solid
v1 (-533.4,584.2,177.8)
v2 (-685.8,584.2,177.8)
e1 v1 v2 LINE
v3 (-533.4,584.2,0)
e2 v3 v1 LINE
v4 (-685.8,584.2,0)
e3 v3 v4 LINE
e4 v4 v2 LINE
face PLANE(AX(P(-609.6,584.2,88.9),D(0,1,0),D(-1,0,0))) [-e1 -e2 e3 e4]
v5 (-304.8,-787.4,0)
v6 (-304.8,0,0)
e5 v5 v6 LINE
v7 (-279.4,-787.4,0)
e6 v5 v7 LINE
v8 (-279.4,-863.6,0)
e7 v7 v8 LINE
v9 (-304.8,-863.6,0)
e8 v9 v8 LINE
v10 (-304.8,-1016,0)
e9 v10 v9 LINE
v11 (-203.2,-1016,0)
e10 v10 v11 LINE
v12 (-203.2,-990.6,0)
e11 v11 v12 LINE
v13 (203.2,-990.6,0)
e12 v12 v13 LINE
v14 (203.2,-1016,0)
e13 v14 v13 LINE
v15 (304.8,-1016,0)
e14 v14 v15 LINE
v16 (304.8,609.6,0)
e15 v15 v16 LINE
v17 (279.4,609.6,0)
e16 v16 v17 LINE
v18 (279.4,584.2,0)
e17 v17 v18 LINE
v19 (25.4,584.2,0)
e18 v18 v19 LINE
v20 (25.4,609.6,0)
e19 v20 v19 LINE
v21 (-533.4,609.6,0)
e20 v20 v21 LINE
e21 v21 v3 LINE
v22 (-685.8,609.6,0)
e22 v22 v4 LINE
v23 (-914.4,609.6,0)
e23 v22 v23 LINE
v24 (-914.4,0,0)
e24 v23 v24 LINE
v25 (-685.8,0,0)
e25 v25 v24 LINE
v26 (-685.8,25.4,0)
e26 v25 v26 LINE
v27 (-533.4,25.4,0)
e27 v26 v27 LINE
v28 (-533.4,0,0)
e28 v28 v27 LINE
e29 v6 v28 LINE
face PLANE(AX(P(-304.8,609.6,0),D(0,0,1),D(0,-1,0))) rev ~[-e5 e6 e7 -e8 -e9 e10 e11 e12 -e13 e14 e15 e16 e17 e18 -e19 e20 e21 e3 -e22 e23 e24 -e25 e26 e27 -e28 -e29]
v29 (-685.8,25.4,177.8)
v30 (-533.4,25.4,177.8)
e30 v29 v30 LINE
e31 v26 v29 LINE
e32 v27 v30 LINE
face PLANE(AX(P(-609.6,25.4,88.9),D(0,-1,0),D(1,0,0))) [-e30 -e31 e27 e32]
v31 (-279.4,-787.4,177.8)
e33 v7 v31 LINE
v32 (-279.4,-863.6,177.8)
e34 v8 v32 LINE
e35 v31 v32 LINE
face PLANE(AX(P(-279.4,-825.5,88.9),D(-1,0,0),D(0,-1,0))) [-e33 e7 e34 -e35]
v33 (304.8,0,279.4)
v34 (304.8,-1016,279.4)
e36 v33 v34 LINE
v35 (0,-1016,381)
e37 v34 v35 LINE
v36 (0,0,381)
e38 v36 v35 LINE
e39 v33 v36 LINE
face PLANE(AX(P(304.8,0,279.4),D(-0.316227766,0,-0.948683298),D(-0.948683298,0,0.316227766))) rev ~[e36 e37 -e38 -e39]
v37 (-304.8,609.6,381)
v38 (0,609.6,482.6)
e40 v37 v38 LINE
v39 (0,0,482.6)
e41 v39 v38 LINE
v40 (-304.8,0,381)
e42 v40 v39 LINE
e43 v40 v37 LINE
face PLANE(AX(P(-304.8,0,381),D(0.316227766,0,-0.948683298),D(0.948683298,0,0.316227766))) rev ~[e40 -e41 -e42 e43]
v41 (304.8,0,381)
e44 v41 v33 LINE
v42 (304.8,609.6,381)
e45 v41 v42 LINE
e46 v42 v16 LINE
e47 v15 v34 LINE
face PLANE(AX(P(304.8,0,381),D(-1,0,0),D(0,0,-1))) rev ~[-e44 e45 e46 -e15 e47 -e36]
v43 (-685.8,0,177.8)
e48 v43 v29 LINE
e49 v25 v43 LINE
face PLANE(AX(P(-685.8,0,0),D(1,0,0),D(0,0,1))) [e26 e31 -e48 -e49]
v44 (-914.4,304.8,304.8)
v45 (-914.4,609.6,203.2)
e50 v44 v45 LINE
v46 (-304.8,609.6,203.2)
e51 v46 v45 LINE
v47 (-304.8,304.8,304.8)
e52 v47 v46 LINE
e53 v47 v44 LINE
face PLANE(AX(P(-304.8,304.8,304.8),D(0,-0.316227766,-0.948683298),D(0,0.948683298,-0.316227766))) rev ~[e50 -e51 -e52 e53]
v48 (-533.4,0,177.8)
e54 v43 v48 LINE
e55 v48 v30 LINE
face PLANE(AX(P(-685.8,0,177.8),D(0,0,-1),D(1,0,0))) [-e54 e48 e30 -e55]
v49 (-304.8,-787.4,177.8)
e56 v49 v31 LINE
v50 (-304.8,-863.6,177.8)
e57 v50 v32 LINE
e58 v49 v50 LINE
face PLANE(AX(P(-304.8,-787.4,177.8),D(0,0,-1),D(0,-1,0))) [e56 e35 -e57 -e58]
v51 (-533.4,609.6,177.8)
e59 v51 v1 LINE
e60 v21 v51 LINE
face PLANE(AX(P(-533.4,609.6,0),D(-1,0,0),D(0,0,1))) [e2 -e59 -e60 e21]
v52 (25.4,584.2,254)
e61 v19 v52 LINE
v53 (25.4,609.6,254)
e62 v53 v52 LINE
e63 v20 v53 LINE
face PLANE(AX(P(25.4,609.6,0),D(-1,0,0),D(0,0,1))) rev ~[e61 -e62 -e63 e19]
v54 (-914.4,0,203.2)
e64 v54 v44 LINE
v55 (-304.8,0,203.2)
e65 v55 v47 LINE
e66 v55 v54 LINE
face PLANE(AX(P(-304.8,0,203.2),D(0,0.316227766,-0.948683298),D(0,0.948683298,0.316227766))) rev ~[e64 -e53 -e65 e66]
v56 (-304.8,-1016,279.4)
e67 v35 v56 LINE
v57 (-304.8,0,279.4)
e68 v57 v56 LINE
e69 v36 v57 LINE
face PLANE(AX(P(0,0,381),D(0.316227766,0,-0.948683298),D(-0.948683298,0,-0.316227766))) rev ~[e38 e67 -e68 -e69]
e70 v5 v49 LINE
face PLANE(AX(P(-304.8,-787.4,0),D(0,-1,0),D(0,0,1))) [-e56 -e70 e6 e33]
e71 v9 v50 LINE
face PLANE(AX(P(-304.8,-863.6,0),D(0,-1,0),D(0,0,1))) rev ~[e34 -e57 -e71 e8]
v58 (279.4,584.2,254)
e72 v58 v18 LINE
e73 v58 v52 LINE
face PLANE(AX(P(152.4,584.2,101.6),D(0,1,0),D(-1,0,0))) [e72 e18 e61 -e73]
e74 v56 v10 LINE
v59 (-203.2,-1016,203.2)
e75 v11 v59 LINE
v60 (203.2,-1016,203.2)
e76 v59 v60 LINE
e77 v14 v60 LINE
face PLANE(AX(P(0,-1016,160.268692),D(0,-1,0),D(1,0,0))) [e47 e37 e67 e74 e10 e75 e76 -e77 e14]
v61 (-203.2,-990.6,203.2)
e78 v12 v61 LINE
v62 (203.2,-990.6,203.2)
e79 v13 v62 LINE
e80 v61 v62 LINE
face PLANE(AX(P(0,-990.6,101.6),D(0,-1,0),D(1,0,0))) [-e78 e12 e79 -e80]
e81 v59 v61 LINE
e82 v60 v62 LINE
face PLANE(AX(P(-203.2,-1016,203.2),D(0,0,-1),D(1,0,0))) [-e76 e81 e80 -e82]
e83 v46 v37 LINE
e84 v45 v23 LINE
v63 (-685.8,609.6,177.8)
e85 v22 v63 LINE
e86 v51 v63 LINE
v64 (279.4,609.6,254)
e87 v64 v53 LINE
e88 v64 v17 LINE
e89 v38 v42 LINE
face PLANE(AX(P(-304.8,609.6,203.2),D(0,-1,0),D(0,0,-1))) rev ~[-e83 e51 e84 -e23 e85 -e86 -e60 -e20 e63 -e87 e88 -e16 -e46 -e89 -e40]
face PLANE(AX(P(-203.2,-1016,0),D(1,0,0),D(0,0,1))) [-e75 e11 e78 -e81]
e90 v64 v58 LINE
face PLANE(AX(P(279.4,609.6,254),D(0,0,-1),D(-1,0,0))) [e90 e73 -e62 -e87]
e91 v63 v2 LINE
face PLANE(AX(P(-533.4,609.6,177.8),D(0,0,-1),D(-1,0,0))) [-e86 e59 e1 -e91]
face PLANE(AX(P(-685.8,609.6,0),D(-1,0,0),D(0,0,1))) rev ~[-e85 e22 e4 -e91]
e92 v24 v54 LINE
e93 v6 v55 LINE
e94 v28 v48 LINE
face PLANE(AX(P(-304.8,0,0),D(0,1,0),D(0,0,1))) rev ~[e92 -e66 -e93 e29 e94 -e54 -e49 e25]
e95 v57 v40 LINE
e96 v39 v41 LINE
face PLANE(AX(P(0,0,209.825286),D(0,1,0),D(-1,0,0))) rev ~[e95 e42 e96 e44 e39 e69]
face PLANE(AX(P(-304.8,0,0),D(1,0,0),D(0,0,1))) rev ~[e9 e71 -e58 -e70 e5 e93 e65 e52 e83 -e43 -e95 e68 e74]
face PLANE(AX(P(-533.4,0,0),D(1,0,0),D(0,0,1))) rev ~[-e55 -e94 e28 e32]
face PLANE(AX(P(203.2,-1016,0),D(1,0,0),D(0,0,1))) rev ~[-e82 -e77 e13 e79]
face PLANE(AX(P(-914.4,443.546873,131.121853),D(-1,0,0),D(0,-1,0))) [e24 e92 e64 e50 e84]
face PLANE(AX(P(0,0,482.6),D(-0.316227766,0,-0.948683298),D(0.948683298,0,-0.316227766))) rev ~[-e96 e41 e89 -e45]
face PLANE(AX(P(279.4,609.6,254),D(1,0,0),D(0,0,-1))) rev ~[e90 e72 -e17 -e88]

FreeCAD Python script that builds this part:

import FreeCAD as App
import Part
import Sketcher

V = App.Vector
Q = App.Units.Quantity

doc = App.newDocument("Part")
body = doc.addObject("PartDesign::Body", "Body")

sketch1 = body.newObject("Sketcher::SketchObject", "Sketch")
sketch1.AttachmentSupport = (doc.getObject("XZ_Plane"), [""])
sketch1.MapMode = "FlatFace"
sketch1.addGeometry(Part.LineSegment(V(-305, 0, 0), V(305, 0, 0)), False)
sketch1.addGeometry(Part.LineSegment(V(305, 0, 0), V(305, 279, 0)), False)
sketch1.addGeometry(Part.LineSegment(V(305, 279, 0), V(0, 381, 0)), False)
sketch1.addGeometry(Part.LineSegment(V(0, 381, 0), V(-305, 279, 0)), False)
sketch1.addGeometry(Part.LineSegment(V(-305, 279, 0), V(-305, 0, 0)), False)
sketch1.addConstraint(Sketcher.Constraint("Coincident", 0, 2, 1, 1))
sketch1.addConstraint(Sketcher.Constraint("Coincident", 1, 2, 2, 1))
sketch1.addConstraint(Sketcher.Constraint("Coincident", 2, 2, 3, 1))
sketch1.addConstraint(Sketcher.Constraint("Coincident", 3, 2, 4, 1))
sketch1.addConstraint(Sketcher.Constraint("Coincident", 4, 2, 0, 1))
sketch1.addConstraint(Sketcher.Constraint("Horizontal", 0))
sketch1.addConstraint(Sketcher.Constraint("Vertical", 1))
sketch1.addConstraint(Sketcher.Constraint("Vertical", 4))
sketch1.addConstraint(Sketcher.Constraint("Symmetric", 0, 2, 4, 2, -1, 1))
sketch1.addConstraint(Sketcher.Constraint("PointOnObject", 2, 2, -2))
sketch1.addConstraint(Sketcher.Constraint("Horizontal", 1, 2, 3, 2))
sketch1.addConstraint(Sketcher.Constraint("DistanceX", 0, 1, 0, 2, Q("24 in")))
sketch1.addConstraint(Sketcher.Constraint("DistanceY", 1, 1, 1, 2, Q("11 in")))
sketch1.addConstraint(Sketcher.Constraint("DistanceY", -1, 1, 2, 2, Q("15 in")))
pad1 = body.newObject("PartDesign::Pad", "Pad")
pad1.Profile = sketch1
pad1.Length = Q("40 in")

sketch2 = body.newObject("Sketcher::SketchObject", "Sketch001")
sketch2.AttachmentSupport = (doc.getObject("XZ_Plane"), [""])
sketch2.MapMode = "FlatFace"
sketch2.addGeometry(Part.LineSegment(V(305, 381, 0), V(305, 0, 0)), False)
sketch2.addGeometry(Part.LineSegment(V(305, 0, 0), V(-305, 0, 0)), False)
sketch2.addGeometry(Part.LineSegment(V(-305, 0, 0), V(-305, 381, 0)), False)
sketch2.addGeometry(Part.LineSegment(V(-305, 381, 0), V(0, 483, 0)), False)
sketch2.addGeometry(Part.LineSegment(V(0, 483, 0), V(305, 381, 0)), False)
sketch2.addConstraint(Sketcher.Constraint("Coincident", 0, 2, 1, 1))
sketch2.addConstraint(Sketcher.Constraint("Coincident", 1, 2, 2, 1))
sketch2.addConstraint(Sketcher.Constraint("Coincident", 2, 2, 3, 1))
sketch2.addConstraint(Sketcher.Constraint("Coincident", 3, 2, 4, 1))
sketch2.addConstraint(Sketcher.Constraint("Coincident", 4, 2, 0, 1))
sketch2.addConstraint(Sketcher.Constraint("Vertical", 0))
sketch2.addConstraint(Sketcher.Constraint("Horizontal", 1))
sketch2.addConstraint(Sketcher.Constraint("Vertical", 2))
sketch2.addConstraint(Sketcher.Constraint("Symmetric", 0, 2, 1, 2, -1, 1))
sketch2.addConstraint(Sketcher.Constraint("PointOnObject", 3, 2, -2))
sketch2.addConstraint(Sketcher.Constraint("Horizontal", 2, 2, 4, 2))
sketch2.addConstraint(Sketcher.Constraint("DistanceX", 1, 2, 1, 1, Q("24 in")))
sketch2.addConstraint(Sketcher.Constraint("DistanceY", 0, 2, 0, 1, Q("15 in")))
sketch2.addConstraint(Sketcher.Constraint("DistanceY", -1, 1, 3, 2, Q("19 in")))
pad2 = body.newObject("PartDesign::Pad", "Pad001")
pad2.Profile = sketch2
pad2.Length = Q("24 in")
pad2.Reversed = True

sketch3 = body.newObject("Sketcher::SketchObject", "Sketch002")
sketch3.AttachmentSupport = (doc.getObject("YZ_Plane"), [""])
sketch3.MapMode = "FlatFace"
sketch3.AttachmentOffset = App.Placement(V(0, 0, -12 * 25.4), App.Rotation())
sketch3.addGeometry(Part.LineSegment(V(610, 203, 0), V(610, 0, 0)), False)
sketch3.addGeometry(Part.LineSegment(V(610, 0, 0), V(0, 0, 0)), False)
sketch3.addGeometry(Part.LineSegment(V(0, 0, 0), V(0, 203, 0)), False)
sketch3.addGeometry(Part.LineSegment(V(0, 203, 0), V(305, 305, 0)), False)
sketch3.addGeometry(Part.LineSegment(V(305, 305, 0), V(610, 203, 0)), False)
sketch3.addConstraint(Sketcher.Constraint("Coincident", 0, 2, 1, 1))
sketch3.addConstraint(Sketcher.Constraint("Coincident", 1, 2, 2, 1))
sketch3.addConstraint(Sketcher.Constraint("Coincident", 2, 2, 3, 1))
sketch3.addConstraint(Sketcher.Constraint("Coincident", 3, 2, 4, 1))
sketch3.addConstraint(Sketcher.Constraint("Coincident", 4, 2, 0, 1))
sketch3.addConstraint(Sketcher.Constraint("Vertical", 0))
sketch3.addConstraint(Sketcher.Constraint("Horizontal", 1))
sketch3.addConstraint(Sketcher.Constraint("Vertical", 2))
sketch3.addConstraint(Sketcher.Constraint("Coincident", 1, 2, -1, 1))
sketch3.addConstraint(Sketcher.Constraint("Horizontal", 2, 2, 4, 2))
sketch3.addConstraint(Sketcher.Constraint("Equal", 3, 4))
sketch3.addConstraint(Sketcher.Constraint("DistanceX", 1, 2, 1, 1, Q("24 in")))
sketch3.addConstraint(Sketcher.Constraint("DistanceY", 0, 2, 0, 1, Q("8 in")))
sketch3.addConstraint(Sketcher.Constraint("DistanceY", -1, 1, 3, 2, Q("12 in")))
pad3 = body.newObject("PartDesign::Pad", "Pad002")
pad3.Profile = sketch3
pad3.Length = Q("24 in")
pad3.Reversed = True

sketch4 = body.newObject("Sketcher::SketchObject", "Sketch003")
sketch4.AttachmentSupport = (doc.getObject("XZ_Plane"), [""])
sketch4.MapMode = "FlatFace"
sketch4.addGeometry(Part.LineSegment(V(-686, 178, 0), V(-686, 0, 0)), False)
sketch4.addGeometry(Part.LineSegment(V(-686, 0, 0), V(-533, 0, 0)), False)
sketch4.addGeometry(Part.LineSegment(V(-533, 0, 0), V(-533, 178, 0)), False)
sketch4.addGeometry(Part.LineSegment(V(-533, 178, 0), V(-686, 178, 0)), False)
sketch4.addConstraint(Sketcher.Constraint("Coincident", 0, 2, 1, 1))
sketch4.addConstraint(Sketcher.Constraint("Coincident", 1, 2, 2, 1))
sketch4.addConstraint(Sketcher.Constraint("Coincident", 2, 2, 3, 1))
sketch4.addConstraint(Sketcher.Constraint("Coincident", 3, 2, 0, 1))
sketch4.addConstraint(Sketcher.Constraint("Vertical", 0))
sketch4.addConstraint(Sketcher.Constraint("Horizontal", 1))
sketch4.addConstraint(Sketcher.Constraint("Vertical", 2))
sketch4.addConstraint(Sketcher.Constraint("Horizontal", 3))
sketch4.addConstraint(Sketcher.Constraint("PointOnObject", 0, 2, -1))
sketch4.addConstraint(Sketcher.Constraint("DistanceX", 1, 1, 1, 2, Q("6 in")))
sketch4.addConstraint(Sketcher.Constraint("DistanceY", 0, 2, 0, 1, Q("7 in")))
sketch4.addConstraint(Sketcher.Constraint("DistanceX", 0, 2, -1, 1, Q("27 in")))
pocket1 = body.newObject("PartDesign::Pocket", "Pocket")
pocket1.Profile = sketch4
pocket1.Length = Q("1 in")

sketch5 = body.newObject("Sketcher::SketchObject", "Sketch004")
sketch5.AttachmentSupport = (doc.getObject("XZ_Plane"), [""])
sketch5.MapMode = "FlatFace"
sketch5.AttachmentOffset = App.Placement(V(0, 0, 40 * 25.4), App.Rotation())
sketch5.addGeometry(Part.LineSegment(V(-203, 203, 0), V(-203, 0, 0)), False)
sketch5.addGeometry(Part.LineSegment(V(-203, 0, 0), V(203, 0, 0)), False)
sketch5.addGeometry(Part.LineSegment(V(203, 0, 0), V(203, 203, 0)), False)
sketch5.addGeometry(Part.LineSegment(V(203, 203, 0), V(-203, 203, 0)), False)
sketch5.addConstraint(Sketcher.Constraint("Coincident", 0, 2, 1, 1))
sketch5.addConstraint(Sketcher.Constraint("Coincident", 1, 2, 2, 1))
sketch5.addConstraint(Sketcher.Constraint("Coincident", 2, 2, 3, 1))
sketch5.addConstraint(Sketcher.Constraint("Coincident", 3, 2, 0, 1))
sketch5.addConstraint(Sketcher.Constraint("Vertical", 0))
sketch5.addConstraint(Sketcher.Constraint("Horizontal", 1))
sketch5.addConstraint(Sketcher.Constraint("Vertical", 2))
sketch5.addConstraint(Sketcher.Constraint("Horizontal", 3))
sketch5.addConstraint(Sketcher.Constraint("Symmetric", 0, 2, 1, 2, -1, 1))
sketch5.addConstraint(Sketcher.Constraint("DistanceX", 1, 1, 1, 2, Q("16 in")))
sketch5.addConstraint(Sketcher.Constraint("DistanceY", 0, 2, 0, 1, Q("8 in")))
pocket2 = body.newObject("PartDesign::Pocket", "Pocket001")
pocket2.Profile = sketch5
pocket2.Length = Q("1 in")

sketch6 = body.newObject("Sketcher::SketchObject", "Sketch005")
sketch6.AttachmentSupport = (doc.getObject("XZ_Plane"), [""])
sketch6.MapMode = "FlatFace"
sketch6.AttachmentOffset = App.Placement(V(0, 0, -24 * 25.4), App.Rotation())
sketch6.addGeometry(Part.LineSegment(V(279, 0, 0), V(25, 0, 0)), False)
sketch6.addGeometry(Part.LineSegment(V(25, 0, 0), V(25, 254, 0)), False)
sketch6.addGeometry(Part.LineSegment(V(25, 254, 0), V(279, 254, 0)), False)
sketch6.addGeometry(Part.LineSegment(V(279, 254, 0), V(279, 0, 0)), False)
sketch6.addGeometry(Part.LineSegment(V(-533, 178, 0), V(-533, 0, 0)), False)
sketch6.addGeometry(Part.LineSegment(V(-533, 0, 0), V(-686, 0, 0)), False)
sketch6.addGeometry(Part.LineSegment(V(-686, 0, 0), V(-686, 178, 0)), False)
sketch6.addGeometry(Part.LineSegment(V(-686, 178, 0), V(-533, 178, 0)), False)
sketch6.addConstraint(Sketcher.Constraint("Coincident", 0, 2, 1, 1))
sketch6.addConstraint(Sketcher.Constraint("Coincident", 1, 2, 2, 1))
sketch6.addConstraint(Sketcher.Constraint("Coincident", 2, 2, 3, 1))
sketch6.addConstraint(Sketcher.Constraint("Coincident", 3, 2, 0, 1))
sketch6.addConstraint(Sketcher.Constraint("Coincident", 4, 2, 5, 1))
sketch6.addConstraint(Sketcher.Constraint("Coincident", 5, 2, 6, 1))
sketch6.addConstraint(Sketcher.Constraint("Coincident", 6, 2, 7, 1))
sketch6.addConstraint(Sketcher.Constraint("Coincident", 7, 2, 4, 1))
sketch6.addConstraint(Sketcher.Constraint("Horizontal", 0))
sketch6.addConstraint(Sketcher.Constraint("Vertical", 1))
sketch6.addConstraint(Sketcher.Constraint("Horizontal", 2))
sketch6.addConstraint(Sketcher.Constraint("Vertical", 3))
sketch6.addConstraint(Sketcher.Constraint("Vertical", 4))
sketch6.addConstraint(Sketcher.Constraint("Horizontal", 5))
sketch6.addConstraint(Sketcher.Constraint("Vertical", 6))
sketch6.addConstraint(Sketcher.Constraint("Horizontal", 7))
sketch6.addConstraint(Sketcher.Constraint("PointOnObject", 0, 2, -1))
sketch6.addConstraint(Sketcher.Constraint("PointOnObject", 4, 2, -1))
sketch6.addConstraint(Sketcher.Constraint("Equal", 2, 1))
sketch6.addConstraint(Sketcher.Constraint("DistanceX", 0, 2, 0, 1, Q("10 in")))
sketch6.addConstraint(Sketcher.Constraint("DistanceX", 5, 2, 5, 1, Q("6 in")))
sketch6.addConstraint(Sketcher.Constraint("DistanceY", 4, 2, 4, 1, Q("7 in")))
sketch6.addConstraint(Sketcher.Constraint("DistanceX", -1, 1, 0, 2, Q("1 in")))
sketch6.addConstraint(Sketcher.Constraint("DistanceX", 4, 2, -1, 1, Q("21 in")))
pocket3 = body.newObject("PartDesign::Pocket", "Pocket002")
pocket3.Profile = sketch6
pocket3.Length = Q("1 in")
pocket3.Reversed = True

sketch7 = body.newObject("Sketcher::SketchObject", "Sketch006")
sketch7.AttachmentSupport = (doc.getObject("YZ_Plane"), [""])
sketch7.MapMode = "FlatFace"
sketch7.AttachmentOffset = App.Placement(V(0, 0, -12 * 25.4), App.Rotation())
sketch7.addGeometry(Part.LineSegment(V(-787, 178, 0), V(-787, 0, 0)), False)
sketch7.addGeometry(Part.LineSegment(V(-787, 0, 0), V(-864, 0, 0)), False)
sketch7.addGeometry(Part.LineSegment(V(-864, 0, 0), V(-864, 178, 0)), False)
sketch7.addGeometry(Part.LineSegment(V(-864, 178, 0), V(-787, 178, 0)), False)
sketch7.addConstraint(Sketcher.Constraint("Coincident", 0, 2, 1, 1))
sketch7.addConstraint(Sketcher.Constraint("Coincident", 1, 2, 2, 1))
sketch7.addConstraint(Sketcher.Constraint("Coincident", 2, 2, 3, 1))
sketch7.addConstraint(Sketcher.Constraint("Coincident", 3, 2, 0, 1))
sketch7.addConstraint(Sketcher.Constraint("Vertical", 0))
sketch7.addConstraint(Sketcher.Constraint("Horizontal", 1))
sketch7.addConstraint(Sketcher.Constraint("Vertical", 2))
sketch7.addConstraint(Sketcher.Constraint("Horizontal", 3))
sketch7.addConstraint(Sketcher.Constraint("PointOnObject", 0, 2, -1))
sketch7.addConstraint(Sketcher.Constraint("DistanceX", 1, 2, 1, 1, Q("3 in")))
sketch7.addConstraint(Sketcher.Constraint("DistanceY", 0, 2, 0, 1, Q("7 in")))
sketch7.addConstraint(Sketcher.Constraint("DistanceX", 0, 2, -1, 1, Q("31 in")))
pocket4 = body.newObject("PartDesign::Pocket", "Pocket003")
pocket4.Profile = sketch7
pocket4.Length = Q("1 in")
pocket4.Reversed = True

doc.recompute()
